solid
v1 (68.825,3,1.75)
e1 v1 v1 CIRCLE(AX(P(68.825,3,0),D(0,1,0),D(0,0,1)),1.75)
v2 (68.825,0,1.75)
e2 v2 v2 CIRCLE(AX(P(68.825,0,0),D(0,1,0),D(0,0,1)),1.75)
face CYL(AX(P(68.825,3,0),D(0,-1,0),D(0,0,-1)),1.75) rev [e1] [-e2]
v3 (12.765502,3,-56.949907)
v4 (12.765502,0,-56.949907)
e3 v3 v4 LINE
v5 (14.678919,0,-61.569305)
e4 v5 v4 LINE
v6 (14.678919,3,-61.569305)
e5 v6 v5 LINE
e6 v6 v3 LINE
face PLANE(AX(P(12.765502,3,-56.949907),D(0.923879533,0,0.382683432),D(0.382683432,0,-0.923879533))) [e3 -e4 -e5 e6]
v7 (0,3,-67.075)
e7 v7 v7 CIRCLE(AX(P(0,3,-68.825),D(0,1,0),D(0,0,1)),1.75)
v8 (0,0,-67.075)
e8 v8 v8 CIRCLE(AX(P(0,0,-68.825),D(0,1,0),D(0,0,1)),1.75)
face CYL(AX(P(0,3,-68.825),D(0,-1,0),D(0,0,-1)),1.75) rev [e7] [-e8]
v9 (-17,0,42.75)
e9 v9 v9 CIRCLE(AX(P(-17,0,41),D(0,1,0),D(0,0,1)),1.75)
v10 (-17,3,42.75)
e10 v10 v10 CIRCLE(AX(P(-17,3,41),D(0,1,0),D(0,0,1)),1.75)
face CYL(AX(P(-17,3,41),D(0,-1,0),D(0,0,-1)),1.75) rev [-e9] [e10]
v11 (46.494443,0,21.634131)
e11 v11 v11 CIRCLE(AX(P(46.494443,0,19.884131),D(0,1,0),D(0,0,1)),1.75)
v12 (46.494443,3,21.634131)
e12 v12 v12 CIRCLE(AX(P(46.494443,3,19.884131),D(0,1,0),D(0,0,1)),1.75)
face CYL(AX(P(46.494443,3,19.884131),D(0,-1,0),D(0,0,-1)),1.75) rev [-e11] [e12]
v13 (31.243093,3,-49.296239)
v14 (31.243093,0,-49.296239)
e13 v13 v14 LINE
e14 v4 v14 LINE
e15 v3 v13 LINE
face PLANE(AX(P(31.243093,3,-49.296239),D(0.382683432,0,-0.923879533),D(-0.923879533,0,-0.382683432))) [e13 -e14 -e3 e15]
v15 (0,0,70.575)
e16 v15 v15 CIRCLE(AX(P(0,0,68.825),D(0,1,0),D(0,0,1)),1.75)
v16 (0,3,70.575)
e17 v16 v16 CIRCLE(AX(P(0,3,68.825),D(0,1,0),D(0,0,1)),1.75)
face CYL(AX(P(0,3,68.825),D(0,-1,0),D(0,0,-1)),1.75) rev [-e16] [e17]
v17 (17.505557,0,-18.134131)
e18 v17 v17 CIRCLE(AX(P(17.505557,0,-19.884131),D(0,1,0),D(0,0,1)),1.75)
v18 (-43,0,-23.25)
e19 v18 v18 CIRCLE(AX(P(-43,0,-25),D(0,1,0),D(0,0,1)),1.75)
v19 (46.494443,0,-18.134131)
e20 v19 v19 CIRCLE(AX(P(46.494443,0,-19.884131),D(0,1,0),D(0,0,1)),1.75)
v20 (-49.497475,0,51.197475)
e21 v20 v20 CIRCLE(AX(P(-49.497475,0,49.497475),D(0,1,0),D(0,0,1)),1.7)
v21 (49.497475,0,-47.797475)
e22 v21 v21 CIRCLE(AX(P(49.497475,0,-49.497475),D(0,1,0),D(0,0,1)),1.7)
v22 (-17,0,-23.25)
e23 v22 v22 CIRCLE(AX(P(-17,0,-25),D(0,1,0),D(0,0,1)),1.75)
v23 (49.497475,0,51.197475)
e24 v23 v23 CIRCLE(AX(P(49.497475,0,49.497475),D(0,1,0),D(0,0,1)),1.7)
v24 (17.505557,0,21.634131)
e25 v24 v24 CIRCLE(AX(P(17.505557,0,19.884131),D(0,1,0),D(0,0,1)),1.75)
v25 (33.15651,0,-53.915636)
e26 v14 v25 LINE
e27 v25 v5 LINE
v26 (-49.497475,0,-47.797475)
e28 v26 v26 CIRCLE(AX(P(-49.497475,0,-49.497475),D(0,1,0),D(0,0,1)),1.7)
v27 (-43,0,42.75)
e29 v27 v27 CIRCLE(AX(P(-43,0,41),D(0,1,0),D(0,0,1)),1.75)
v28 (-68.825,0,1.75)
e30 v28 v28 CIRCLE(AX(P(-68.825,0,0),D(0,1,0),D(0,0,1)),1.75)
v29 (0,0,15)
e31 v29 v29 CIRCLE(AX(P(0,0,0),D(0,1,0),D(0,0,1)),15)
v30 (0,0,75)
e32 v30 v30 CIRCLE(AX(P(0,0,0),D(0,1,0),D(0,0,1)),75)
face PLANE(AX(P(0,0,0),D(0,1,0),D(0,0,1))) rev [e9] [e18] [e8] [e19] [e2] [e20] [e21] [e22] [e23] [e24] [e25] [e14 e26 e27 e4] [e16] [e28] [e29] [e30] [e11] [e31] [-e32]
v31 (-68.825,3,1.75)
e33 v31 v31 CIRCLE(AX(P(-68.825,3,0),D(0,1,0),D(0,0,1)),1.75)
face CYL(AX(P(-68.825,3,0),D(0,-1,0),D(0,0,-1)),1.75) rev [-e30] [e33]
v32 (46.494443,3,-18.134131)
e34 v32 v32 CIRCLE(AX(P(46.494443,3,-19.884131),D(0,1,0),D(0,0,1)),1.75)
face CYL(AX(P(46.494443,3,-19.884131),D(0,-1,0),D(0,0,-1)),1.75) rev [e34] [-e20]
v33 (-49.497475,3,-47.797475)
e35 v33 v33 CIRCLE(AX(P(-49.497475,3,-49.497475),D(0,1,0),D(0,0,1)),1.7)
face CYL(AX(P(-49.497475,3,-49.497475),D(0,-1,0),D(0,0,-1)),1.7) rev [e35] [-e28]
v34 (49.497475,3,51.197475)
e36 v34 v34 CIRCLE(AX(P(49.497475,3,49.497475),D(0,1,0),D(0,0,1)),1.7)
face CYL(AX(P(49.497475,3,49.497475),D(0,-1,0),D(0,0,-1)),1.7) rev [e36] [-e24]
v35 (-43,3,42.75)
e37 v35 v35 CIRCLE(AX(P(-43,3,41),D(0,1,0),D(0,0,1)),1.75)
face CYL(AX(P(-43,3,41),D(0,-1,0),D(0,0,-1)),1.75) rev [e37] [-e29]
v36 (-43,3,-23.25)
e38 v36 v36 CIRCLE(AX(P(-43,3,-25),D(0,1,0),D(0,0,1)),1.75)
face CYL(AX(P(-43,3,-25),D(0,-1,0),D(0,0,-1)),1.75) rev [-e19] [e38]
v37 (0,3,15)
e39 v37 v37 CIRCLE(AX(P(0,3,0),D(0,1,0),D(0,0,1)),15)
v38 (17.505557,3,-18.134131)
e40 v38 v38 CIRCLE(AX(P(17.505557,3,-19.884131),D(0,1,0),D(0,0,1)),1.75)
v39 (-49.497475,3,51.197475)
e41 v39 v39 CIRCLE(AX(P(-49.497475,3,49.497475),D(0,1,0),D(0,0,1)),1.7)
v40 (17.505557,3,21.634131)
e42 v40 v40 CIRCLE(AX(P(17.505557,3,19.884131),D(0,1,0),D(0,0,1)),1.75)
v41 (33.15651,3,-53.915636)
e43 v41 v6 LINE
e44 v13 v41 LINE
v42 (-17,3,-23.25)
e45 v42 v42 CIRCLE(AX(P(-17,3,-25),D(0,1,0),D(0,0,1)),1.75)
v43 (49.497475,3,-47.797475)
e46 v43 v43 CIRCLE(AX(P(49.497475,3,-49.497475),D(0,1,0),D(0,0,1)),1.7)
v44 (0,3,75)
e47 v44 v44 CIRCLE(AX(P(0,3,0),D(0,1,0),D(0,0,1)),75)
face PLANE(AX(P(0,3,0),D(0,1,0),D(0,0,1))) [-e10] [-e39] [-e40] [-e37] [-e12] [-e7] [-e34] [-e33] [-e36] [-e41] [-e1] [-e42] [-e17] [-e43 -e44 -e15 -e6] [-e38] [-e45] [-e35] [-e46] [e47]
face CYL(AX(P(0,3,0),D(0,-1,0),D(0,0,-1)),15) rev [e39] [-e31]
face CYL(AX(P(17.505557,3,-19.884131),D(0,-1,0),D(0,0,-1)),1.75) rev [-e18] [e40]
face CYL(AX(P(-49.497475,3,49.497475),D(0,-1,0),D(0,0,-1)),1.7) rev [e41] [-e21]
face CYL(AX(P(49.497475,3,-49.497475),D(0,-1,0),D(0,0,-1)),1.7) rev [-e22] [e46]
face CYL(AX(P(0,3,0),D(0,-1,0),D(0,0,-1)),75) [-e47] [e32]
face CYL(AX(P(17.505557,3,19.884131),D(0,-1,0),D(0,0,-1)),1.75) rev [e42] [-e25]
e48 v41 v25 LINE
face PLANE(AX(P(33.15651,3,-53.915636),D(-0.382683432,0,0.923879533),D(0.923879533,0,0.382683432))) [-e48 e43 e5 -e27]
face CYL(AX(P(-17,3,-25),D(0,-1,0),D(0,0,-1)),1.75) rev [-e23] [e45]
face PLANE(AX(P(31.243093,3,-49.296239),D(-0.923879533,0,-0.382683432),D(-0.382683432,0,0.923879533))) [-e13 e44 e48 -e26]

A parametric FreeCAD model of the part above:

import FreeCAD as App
import Part
import Sketcher
Q = App.Units.Quantity


def add_polygon(sketch, points):
    """Adds a closed chain of lines whose ends are joined by coincident constraints."""
    first, n = sketch.GeometryCount, len(points)
    for a, b in zip(points, points[1:] + points[:1]):
        sketch.addGeometry(Part.LineSegment(App.Vector(*a, 0), App.Vector(*b, 0)), False)
    for i in range(n):
        sketch.addConstraint(Sketcher.Constraint("Coincident", first + i, 2, first + (i + 1) % n, 1))

doc = App.newDocument("Part")
body = doc.addObject("PartDesign::Body", "Body")

# Sketch on XZ plane
sketch1 = body.newObject("Sketcher::SketchObject", "Sketch")
sketch1.AttachmentSupport = (doc.getObject("XZ_Plane"), [""])
sketch1.MapMode = "FlatFace"
sketch1.addGeometry(Part.Circle(App.Vector(0, 0, 0), App.Vector(0, 0, 1), 75), False)
sketch1.addGeometry(Part.Circle(App.Vector(-49.5, -49.5, 0), App.Vector(0, 0, 1), 1.7), False)
sketch1.addGeometry(Part.Circle(App.Vector(-49.5, 49.5, 0), App.Vector(0, 0, 1), 1.7), False)
sketch1.addGeometry(Part.Circle(App.Vector(49.5, -49.5, 0), App.Vector(0, 0, 1), 1.7), False)
sketch1.addGeometry(Part.Circle(App.Vector(0, 0, 0), App.Vector(0, 0, 1), 15), False)
sketch1.addGeometry(Part.Circle(App.Vector(49.5, 49.5, 0), App.Vector(0, 0, 1), 1.7), False)
sketch1.addConstraint(Sketcher.Constraint("Coincident", 0, 3, -1, 1))
sketch1.addConstraint(Sketcher.Constraint("Coincident", 4, 3, -1, 1))
sketch1.addConstraint(Sketcher.Constraint("Equal", 1, 2))
sketch1.addConstraint(Sketcher.Constraint("Equal", 2, 3))
sketch1.addConstraint(Sketcher.Constraint("Equal", 3, 5))
sketch1.addConstraint(Sketcher.Constraint("Symmetric", 2, 3, 3, 3, -1, 1))
sketch1.addConstraint(Sketcher.Constraint("Symmetric", 1, 3, 5, 3, -1, 1))
sketch1.addConstraint(Sketcher.Constraint("Symmetric", 1, 3, 3, 3, -2))
sketch1.addConstraint(Sketcher.Constraint("Diameter", 0, Q("150 mm")))
sketch1.addConstraint(Sketcher.Constraint("Diameter", 4, Q("30 mm")))
sketch1.addConstraint(Sketcher.Constraint("Diameter", 1, Q("3.4 mm")))
sketch1.addConstraint(Sketcher.Constraint("DistanceY", 1, 3, 2, 3, Q("98.994949 mm")))
sketch1.addConstraint(Sketcher.Constraint("DistanceX", 1, 3, 3, 3, Q("98.994949 mm")))
pad1 = body.newObject("PartDesign::Pad", "Pad")
pad1.Profile = sketch1
pad1.Length = 3
pad1.Reversed = True

# Sketch on XZ plane
sketch2 = body.newObject("Sketcher::SketchObject", "Sketch001")
sketch2.AttachmentSupport = (doc.getObject("XZ_Plane"), [""])
sketch2.MapMode = "FlatFace"
sketch2.addGeometry(Part.Circle(App.Vector(0, -68.8, 0), App.Vector(0, 0, 1), 1.8), False)
sketch2.addGeometry(Part.Circle(App.Vector(68.8, 0, 0), App.Vector(0, 0, 1), 1.8), False)
sketch2.addGeometry(Part.Circle(App.Vector(0, 68.8, 0), App.Vector(0, 0, 1), 1.8), False)
sketch2.addGeometry(Part.Circle(App.Vector(-68.8, 0, 0), App.Vector(0, 0, 1), 1.8), False)
sketch2.addConstraint(Sketcher.Constraint("Equal", 0, 1))
sketch2.addConstraint(Sketcher.Constraint("Equal", 1, 2))
sketch2.addConstraint(Sketcher.Constraint("Equal", 2, 3))
sketch2.addConstraint(Sketcher.Constraint("Symmetric", 0, 3, 2, 3, -1, 1))
sketch2.addConstraint(Sketcher.Constraint("Symmetric", 1, 3, 3, 3, -1, 1))
sketch2.addConstraint(Sketcher.Constraint("PointOnObject", 0, 3, -2))
sketch2.addConstraint(Sketcher.Constraint("PointOnObject", 1, 3, -1))
sketch2.addConstraint(Sketcher.Constraint("Diameter", 0, Q("3.5 mm")))
sketch2.addConstraint(Sketcher.Constraint("DistanceY", 0, 3, 2, 3, Q("137.65 mm")))
sketch2.addConstraint(Sketcher.Constraint("DistanceX", 3, 3, 1, 3, Q("137.65 mm")))
pocket1 = body.newObject("PartDesign::Pocket", "Pocket")
pocket1.Profile = sketch2
pocket1.Type = "ThroughAll"

# Sketch on XZ plane
sketch3 = body.newObject("Sketcher::SketchObject", "Sketch002")
sketch3.AttachmentSupport = (doc.getObject("XZ_Plane"), [""])
sketch3.MapMode = "FlatFace"
sketch3.addGeometry(Part.Circle(App.Vector(-43, -25, 0), App.Vector(0, 0, 1), 1.8), False)  # 0
sketch3.addGeometry(Part.Circle(App.Vector(-17, -25, 0), App.Vector(0, 0, 1), 1.8), False)  # 1
sketch3.addGeometry(Part.Circle(App.Vector(-17, 41, 0), App.Vector(0, 0, 1), 1.8), False)  # 2
sketch3.addGeometry(Part.Circle(App.Vector(-43, 41, 0), App.Vector(0, 0, 1), 1.8), False)  # 3
sketch3.addGeometry(Part.Circle(App.Vector(17.5, -19.9, 0), App.Vector(0, 0, 1), 1.8), False)  # 4
sketch3.addGeometry(Part.Circle(App.Vector(46.5, 19.9, 0), App.Vector(0, 0, 1), 1.8), False)  # 5
sketch3.addGeometry(Part.Circle(App.Vector(46.5, -19.9, 0), App.Vector(0, 0, 1), 1.8), False)  # 6
sketch3.addGeometry(Part.Circle(App.Vector(17.5, 19.9, 0), App.Vector(0, 0, 1), 1.8), False)  # 7
add_polygon(sketch3, [(12.8, -56.9), (31.2, -49.3), (33.2, -53.9), (14.7, -61.6)])  # lines 8-11
sketch3.addConstraint(Sketcher.Constraint("Equal", 0, 1))
sketch3.addConstraint(Sketcher.Constraint("Equal", 1, 2))
sketch3.addConstraint(Sketcher.Constraint("Equal", 2, 3))
sketch3.addConstraint(Sketcher.Constraint("Equal", 3, 4))
sketch3.addConstraint(Sketcher.Constraint("Equal", 4, 5))
sketch3.addConstraint(Sketcher.Constraint("Equal", 5, 6))
sketch3.addConstraint(Sketcher.Constraint("Equal", 6, 7))
sketch3.addConstraint(Sketcher.Constraint("Symmetric", 5, 3, 6, 3, -1))
sketch3.addConstraint(Sketcher.Constraint("Symmetric", 4, 3, 7, 3, -1))
sketch3.addConstraint(Sketcher.Constraint("Perpendicular", 8, 9))
sketch3.addConstraint(Sketcher.Constraint("Perpendicular", 9, 10))
sketch3.addConstraint(Sketcher.Constraint("Perpendicular", 10, 11))
sketch3.addConstraint(Sketcher.Constraint("Horizontal", 0, 3, 1, 3))
sketch3.addConstraint(Sketcher.Constraint("Horizontal", 2, 3, 3, 3))
sketch3.addConstraint(Sketcher.Constraint("Horizontal", 4, 3, 6, 3))
sketch3.addConstraint(Sketcher.Constraint("Vertical", 1, 3, 2, 3))
sketch3.addConstraint(Sketcher.Constraint("Vertical", 0, 3, 3, 3))
sketch3.addConstraint(Sketcher.Constraint("Diameter", 0, Q("3.5 mm")))
sketch3.addConstraint(Sketcher.Constraint("Distance", 8, Q("20 mm")))
sketch3.addConstraint(Sketcher.Constraint("Distance", 9, Q("5 mm")))
sketch3.addConstraint(Sketcher.Constraint("DistanceX", 0, 3, -1, 1, Q("43 mm")))
sketch3.addConstraint(Sketcher.Constraint("DistanceY", 0, 3, -1, 1, Q("25 mm")))
sketch3.addConstraint(Sketcher.Constraint("DistanceX", 1, 3, -1, 1, Q("17 mm")))
sketch3.addConstraint(Sketcher.Constraint("DistanceY", -1, 1, 2, 3, Q("41 mm")))
sketch3.addConstraint(Sketcher.Constraint("Angle", 8, Q("22.5 deg")))
sketch3.addConstraint(Sketcher.Constraint("DistanceY", 4, 3, -1, 1, Q("19.884131 mm")))
sketch3.addConstraint(Sketcher.Constraint("DistanceY", 8, 2, -1, 1, Q("49.296239 mm")))
sketch3.addConstraint(Sketcher.Constraint("DistanceX", -1, 1, 9, 2, Q("33.15651 mm")))
sketch3.addConstraint(Sketcher.Constraint("DistanceX", 8, 2, 6, 3, Q("15.25135 mm")))
sketch3.addConstraint(Sketcher.Constraint("DistanceX", 10, 2, 4, 3, Q("2.826638 mm")))
pocket2 = body.newObject("PartDesign::Pocket", "Pocket001")
pocket2.Profile = sketch3
pocket2.Type = "ThroughAll"

doc.recompute()
